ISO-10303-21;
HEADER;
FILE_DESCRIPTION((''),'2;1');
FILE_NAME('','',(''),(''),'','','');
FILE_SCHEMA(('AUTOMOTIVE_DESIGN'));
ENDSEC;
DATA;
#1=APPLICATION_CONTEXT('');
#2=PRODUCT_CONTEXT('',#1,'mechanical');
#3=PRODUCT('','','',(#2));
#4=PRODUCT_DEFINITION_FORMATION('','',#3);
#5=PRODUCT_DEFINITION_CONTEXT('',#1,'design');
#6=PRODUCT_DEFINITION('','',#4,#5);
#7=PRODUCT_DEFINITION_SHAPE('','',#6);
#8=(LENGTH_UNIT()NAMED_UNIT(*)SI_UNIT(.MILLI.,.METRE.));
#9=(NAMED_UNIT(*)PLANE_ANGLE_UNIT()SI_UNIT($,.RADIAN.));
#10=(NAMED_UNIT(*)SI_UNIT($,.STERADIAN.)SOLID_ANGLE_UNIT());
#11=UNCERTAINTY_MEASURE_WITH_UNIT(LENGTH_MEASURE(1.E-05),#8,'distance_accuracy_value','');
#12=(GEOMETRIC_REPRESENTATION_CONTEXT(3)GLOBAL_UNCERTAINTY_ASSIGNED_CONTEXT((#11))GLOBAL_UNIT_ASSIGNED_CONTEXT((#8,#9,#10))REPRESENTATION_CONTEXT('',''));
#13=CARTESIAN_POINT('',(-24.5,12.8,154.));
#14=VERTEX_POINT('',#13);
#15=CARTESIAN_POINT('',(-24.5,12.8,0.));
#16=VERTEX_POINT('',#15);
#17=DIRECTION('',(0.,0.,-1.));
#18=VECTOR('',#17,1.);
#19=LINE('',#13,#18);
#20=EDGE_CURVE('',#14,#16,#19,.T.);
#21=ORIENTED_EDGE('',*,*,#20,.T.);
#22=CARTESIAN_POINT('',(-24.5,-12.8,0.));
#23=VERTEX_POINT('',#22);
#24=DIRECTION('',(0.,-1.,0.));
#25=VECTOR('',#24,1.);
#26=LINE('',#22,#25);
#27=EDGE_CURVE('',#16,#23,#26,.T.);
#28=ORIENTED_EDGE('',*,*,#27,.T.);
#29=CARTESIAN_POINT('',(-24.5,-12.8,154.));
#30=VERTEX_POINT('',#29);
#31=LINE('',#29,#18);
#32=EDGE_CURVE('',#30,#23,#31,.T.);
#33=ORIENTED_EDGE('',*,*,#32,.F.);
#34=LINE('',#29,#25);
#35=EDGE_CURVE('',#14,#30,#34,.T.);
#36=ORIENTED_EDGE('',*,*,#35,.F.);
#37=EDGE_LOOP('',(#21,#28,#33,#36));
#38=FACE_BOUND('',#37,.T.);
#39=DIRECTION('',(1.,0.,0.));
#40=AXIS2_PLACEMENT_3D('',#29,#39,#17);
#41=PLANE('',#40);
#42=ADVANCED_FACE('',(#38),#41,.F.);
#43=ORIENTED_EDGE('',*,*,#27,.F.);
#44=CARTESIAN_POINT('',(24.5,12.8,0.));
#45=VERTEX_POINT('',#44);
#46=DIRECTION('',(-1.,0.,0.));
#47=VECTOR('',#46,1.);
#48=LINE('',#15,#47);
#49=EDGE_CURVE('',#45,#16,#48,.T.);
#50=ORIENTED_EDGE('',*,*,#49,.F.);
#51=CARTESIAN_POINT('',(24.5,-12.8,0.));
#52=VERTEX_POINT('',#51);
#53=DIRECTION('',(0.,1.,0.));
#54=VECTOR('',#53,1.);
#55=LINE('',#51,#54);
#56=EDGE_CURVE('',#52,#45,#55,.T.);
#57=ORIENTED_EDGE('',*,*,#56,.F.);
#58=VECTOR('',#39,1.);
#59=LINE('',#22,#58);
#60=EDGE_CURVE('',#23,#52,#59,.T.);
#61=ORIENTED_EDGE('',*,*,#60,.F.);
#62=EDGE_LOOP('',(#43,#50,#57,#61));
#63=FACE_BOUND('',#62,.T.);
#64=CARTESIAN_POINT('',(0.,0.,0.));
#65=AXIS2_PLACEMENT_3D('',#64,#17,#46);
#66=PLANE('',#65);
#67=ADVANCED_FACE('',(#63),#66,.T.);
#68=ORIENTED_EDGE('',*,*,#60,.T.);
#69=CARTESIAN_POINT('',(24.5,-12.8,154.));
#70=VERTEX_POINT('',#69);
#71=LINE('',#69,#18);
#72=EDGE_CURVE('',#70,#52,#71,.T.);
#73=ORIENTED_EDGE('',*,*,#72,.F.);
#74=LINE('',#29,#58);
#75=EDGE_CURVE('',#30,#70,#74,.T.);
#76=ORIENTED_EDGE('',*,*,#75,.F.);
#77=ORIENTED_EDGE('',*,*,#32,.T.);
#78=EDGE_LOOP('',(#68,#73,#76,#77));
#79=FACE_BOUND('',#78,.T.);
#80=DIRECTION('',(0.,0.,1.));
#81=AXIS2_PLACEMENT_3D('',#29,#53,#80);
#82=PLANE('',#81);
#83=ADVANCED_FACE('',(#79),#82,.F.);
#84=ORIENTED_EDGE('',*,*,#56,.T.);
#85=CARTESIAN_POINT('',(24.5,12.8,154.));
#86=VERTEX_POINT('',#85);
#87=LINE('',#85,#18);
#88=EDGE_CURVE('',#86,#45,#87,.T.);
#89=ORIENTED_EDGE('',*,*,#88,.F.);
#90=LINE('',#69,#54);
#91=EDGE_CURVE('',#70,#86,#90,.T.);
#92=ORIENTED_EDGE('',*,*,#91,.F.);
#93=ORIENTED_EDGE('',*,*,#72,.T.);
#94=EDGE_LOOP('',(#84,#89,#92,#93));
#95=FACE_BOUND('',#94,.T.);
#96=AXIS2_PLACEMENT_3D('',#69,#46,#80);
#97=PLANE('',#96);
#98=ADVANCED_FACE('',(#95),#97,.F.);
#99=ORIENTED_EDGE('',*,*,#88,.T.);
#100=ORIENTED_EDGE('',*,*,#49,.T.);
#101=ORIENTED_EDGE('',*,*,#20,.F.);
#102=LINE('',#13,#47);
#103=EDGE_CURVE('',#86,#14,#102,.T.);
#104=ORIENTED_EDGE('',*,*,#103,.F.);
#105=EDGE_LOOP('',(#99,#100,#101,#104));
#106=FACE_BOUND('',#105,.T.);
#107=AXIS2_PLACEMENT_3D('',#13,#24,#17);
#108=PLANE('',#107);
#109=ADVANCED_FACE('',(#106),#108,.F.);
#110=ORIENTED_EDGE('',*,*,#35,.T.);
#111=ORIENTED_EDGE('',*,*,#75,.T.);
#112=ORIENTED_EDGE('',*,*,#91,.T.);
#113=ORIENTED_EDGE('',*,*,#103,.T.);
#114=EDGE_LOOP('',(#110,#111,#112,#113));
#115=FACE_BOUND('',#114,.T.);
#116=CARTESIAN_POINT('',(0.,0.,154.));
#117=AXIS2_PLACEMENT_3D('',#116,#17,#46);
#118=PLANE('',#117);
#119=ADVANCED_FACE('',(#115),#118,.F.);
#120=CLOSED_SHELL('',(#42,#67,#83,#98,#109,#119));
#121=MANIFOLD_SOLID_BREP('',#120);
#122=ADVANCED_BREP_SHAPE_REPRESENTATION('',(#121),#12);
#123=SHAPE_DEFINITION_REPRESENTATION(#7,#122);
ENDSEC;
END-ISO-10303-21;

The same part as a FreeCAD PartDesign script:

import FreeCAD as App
import Part
import Sketcher

V = App.Vector
Q = App.Units.Quantity

doc = App.newDocument("Part")
body = doc.addObject("PartDesign::Body", "Body")

# Sketch on XY plane
sketch1 = body.newObject("Sketcher::SketchObject", "Sketch")
sketch1.AttachmentSupport = (doc.getObject("XY_Plane"), [""])
sketch1.MapMode = "FlatFace"
sketch1.addGeometry([
    Part.LineSegment(V(-24, 13, 0), V(-24, -13, 0)),
    Part.LineSegment(V(-24, -13, 0), V(24, -13, 0)),
    Part.LineSegment(V(24, -13, 0), V(24, 13, 0)),
    Part.LineSegment(V(24, 13, 0), V(-24, 13, 0)),
], False)
sketch1.addConstraint([
    Sketcher.Constraint("Coincident", 0, 2, 1, 1),
    Sketcher.Constraint("Coincident", 1, 2, 2, 1),
    Sketcher.Constraint("Coincident", 2, 2, 3, 1),
    Sketcher.Constraint("Coincident", 3, 2, 0, 1),
    Sketcher.Constraint("Vertical", 0),
    Sketcher.Constraint("Horizontal", 1),
    Sketcher.Constraint("Vertical", 2),
    Sketcher.Constraint("Horizontal", 3),
    Sketcher.Constraint("Symmetric", 0, 2, 2, 2, -1, 1),
    Sketcher.Constraint("DistanceX", 1, 1, 1, 2, Q("49 mm")),
    Sketcher.Constraint("DistanceY", 0, 2, 0, 1, Q("25.6 mm")),
])
pad1 = body.newObject("PartDesign::Pad", "Pad")
pad1.Profile = sketch1
pad1.Length = 154

doc.recompute()
